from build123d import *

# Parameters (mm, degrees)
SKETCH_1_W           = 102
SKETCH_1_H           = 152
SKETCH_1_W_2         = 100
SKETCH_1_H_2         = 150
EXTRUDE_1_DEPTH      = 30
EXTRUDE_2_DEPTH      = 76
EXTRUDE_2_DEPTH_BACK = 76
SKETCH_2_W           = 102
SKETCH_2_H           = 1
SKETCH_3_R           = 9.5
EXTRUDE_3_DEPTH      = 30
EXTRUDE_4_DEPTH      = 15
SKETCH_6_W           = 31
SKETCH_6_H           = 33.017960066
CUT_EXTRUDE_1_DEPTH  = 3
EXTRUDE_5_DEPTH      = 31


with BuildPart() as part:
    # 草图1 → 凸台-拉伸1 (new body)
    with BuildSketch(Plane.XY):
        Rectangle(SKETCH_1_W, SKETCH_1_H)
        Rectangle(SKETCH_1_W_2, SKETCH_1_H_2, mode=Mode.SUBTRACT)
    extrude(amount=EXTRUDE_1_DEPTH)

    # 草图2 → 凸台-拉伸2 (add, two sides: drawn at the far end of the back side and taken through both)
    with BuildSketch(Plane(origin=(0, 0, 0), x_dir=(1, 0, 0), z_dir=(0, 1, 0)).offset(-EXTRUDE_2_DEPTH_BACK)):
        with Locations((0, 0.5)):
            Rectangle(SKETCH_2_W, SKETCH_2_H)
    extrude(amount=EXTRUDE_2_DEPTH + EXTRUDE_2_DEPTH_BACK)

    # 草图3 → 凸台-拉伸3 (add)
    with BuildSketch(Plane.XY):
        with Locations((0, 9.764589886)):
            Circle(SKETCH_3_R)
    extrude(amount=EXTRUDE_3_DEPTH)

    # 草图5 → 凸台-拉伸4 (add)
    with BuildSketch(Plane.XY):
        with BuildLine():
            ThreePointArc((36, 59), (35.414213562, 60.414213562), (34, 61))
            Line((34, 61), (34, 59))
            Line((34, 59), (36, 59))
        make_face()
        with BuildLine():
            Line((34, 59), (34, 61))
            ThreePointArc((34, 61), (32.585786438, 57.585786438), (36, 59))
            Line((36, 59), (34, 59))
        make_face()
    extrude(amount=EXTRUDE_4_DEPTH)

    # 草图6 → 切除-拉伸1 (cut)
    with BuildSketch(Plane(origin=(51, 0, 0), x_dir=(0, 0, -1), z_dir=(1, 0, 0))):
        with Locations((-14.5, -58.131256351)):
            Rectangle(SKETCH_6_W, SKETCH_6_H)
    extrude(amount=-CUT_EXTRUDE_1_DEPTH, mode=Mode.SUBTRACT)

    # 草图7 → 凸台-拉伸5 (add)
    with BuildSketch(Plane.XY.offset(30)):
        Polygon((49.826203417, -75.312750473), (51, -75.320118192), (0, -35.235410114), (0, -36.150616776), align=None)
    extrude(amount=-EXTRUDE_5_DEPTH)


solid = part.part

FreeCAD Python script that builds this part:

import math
import FreeCAD as App
import Part
import Sketcher

V = App.Vector
Q = App.Units.Quantity


def add_polygon(sketch, points):
    """Adds a closed chain of lines whose ends are joined by coincident constraints."""
    first, n = sketch.GeometryCount, len(points)
    for a, b in zip(points, points[1:] + points[:1]):
        sketch.addGeometry(Part.LineSegment(App.Vector(*a, 0), App.Vector(*b, 0)), False)
    for i in range(n):
        sketch.addConstraint(Sketcher.Constraint("Coincident", first + i, 2, first + (i + 1) % n, 1))

doc = App.newDocument("Part")
body = doc.addObject("PartDesign::Body", "Body")

sketch1 = doc.addObject("Sketcher::SketchObject", "Sketch")
body.addObject(sketch1)
sketch1.AttachmentSupport = (doc.XY_Plane, [""])
sketch1.MapMode = "FlatFace"
add_polygon(sketch1, [(-51, 76), (-51, -76), (51, -76), (51, 76)])
add_polygon(sketch1, [(50, -75), (-50, -75), (-50, 75), (50, 75)])
sketch1.addConstraint([
    Sketcher.Constraint("Vertical", 0),
    Sketcher.Constraint("Horizontal", 1),
    Sketcher.Constraint("Vertical", 2),
    Sketcher.Constraint("Horizontal", 3),
    Sketcher.Constraint("Horizontal", 4),
    Sketcher.Constraint("Vertical", 5),
    Sketcher.Constraint("Horizontal", 6),
    Sketcher.Constraint("Vertical", 7),
    Sketcher.Constraint("Symmetric", 0, 2, 2, 2, -1, 1),
    Sketcher.Constraint("Symmetric", 4, 2, 6, 2, -1, 1),
    Sketcher.Constraint("DistanceX", 1, 1, 1, 2, Q("102 mm")),
    Sketcher.Constraint("DistanceX", 4, 2, 4, 1, Q("100 mm")),
    Sketcher.Constraint("DistanceY", 0, 2, 0, 1, Q("152 mm")),
    Sketcher.Constraint("DistanceY", 5, 1, 5, 2, Q("150 mm")),
])
pad1 = doc.addObject("PartDesign::Pad", "Pad")
body.addObject(pad1)
pad1.Profile = sketch1
pad1.Length = 30

sketch2 = doc.addObject("Sketcher::SketchObject", "Sketch001")
body.addObject(sketch2)
sketch2.AttachmentSupport = (doc.XZ_Plane, [""])
sketch2.MapMode = "FlatFace"
add_polygon(sketch2, [(-51, -1), (-51, 0), (51, 0), (51, -1)])
sketch2.addConstraint([
    Sketcher.Constraint("Vertical", 0),
    Sketcher.Constraint("Horizontal", 1),
    Sketcher.Constraint("Vertical", 2),
    Sketcher.Constraint("Horizontal", 3),
    Sketcher.Constraint("Symmetric", 0, 2, 1, 2, -1, 1),
    Sketcher.Constraint("DistanceX", 1, 1, 1, 2, Q("102 mm")),
    Sketcher.Constraint("DistanceY", 0, 1, 0, 2, Q("1 mm")),
])
pad2 = doc.addObject("PartDesign::Pad", "Pad001")
body.addObject(pad2)
pad2.Profile = sketch2
pad2.Type = "TwoLengths"
pad2.Length = 76
pad2.Length2 = 76
pad2.Reversed = True

sketch3 = doc.addObject("Sketcher::SketchObject", "Sketch002")
body.addObject(sketch3)
sketch3.AttachmentSupport = (doc.XY_Plane, [""])
sketch3.MapMode = "FlatFace"
sketch3.addGeometry(Part.Circle(V(0, 10, 0), V(0, 0, 1), 10), False)
sketch3.addConstraint([
    Sketcher.Constraint("PointOnObject", 0, 3, -2),
    Sketcher.Constraint("Diameter", 0, Q("19 mm")),
    Sketcher.Constraint("DistanceY", -1, 1, 0, 3, Q("9.76459 mm")),
])
pad3 = doc.addObject("PartDesign::Pad", "Pad002")
body.addObject(pad3)
pad3.Profile = sketch3
pad3.Length = 30

sketch4 = doc.addObject("Sketcher::SketchObject", "Sketch003")
body.addObject(sketch4)
sketch4.AttachmentSupport = (doc.XY_Plane, [""])
sketch4.MapMode = "FlatFace"
sketch4.addGeometry([
    Part.ArcOfCircle(Part.Circle(V(34, 59, 0), V(0, 0, 1), 2), math.radians(0), math.radians(90)),
    Part.ArcOfCircle(Part.Circle(V(34, 59, 0), V(0, 0, 1), 2), math.radians(90), math.radians(360)),
], False)
sketch4.addConstraint([
    Sketcher.Constraint("Tangent", 0, 1, 1, 2),
    Sketcher.Constraint("Coincident", 1, 1, 0, 2),
    Sketcher.Constraint("Horizontal", 1, 3, 0, 1),
    Sketcher.Constraint("Vertical", 0, 3, 1, 1),
    Sketcher.Constraint("Radius", 0, Q("2 mm")),
    Sketcher.Constraint("DistanceX", -1, 1, 0, 3, Q("34 mm")),
    Sketcher.Constraint("DistanceY", -1, 1, 0, 3, Q("59 mm")),
])
pad4 = doc.addObject("PartDesign::Pad", "Pad003")
body.addObject(pad4)
pad4.Profile = sketch4
pad4.Length = 15

sketch5 = doc.addObject("Sketcher::SketchObject", "Sketch004")
body.addObject(sketch5)
sketch5.AttachmentSupport = (doc.YZ_Plane, [""])
sketch5.MapMode = "FlatFace"
sketch5.AttachmentOffset = App.Placement(V(0, 0, 51), App.Rotation())
add_polygon(sketch5, [(-42, 30), (-75, 30), (-75, -1), (-42, -1)])
sketch5.addConstraint([
    Sketcher.Constraint("Horizontal", 0),
    Sketcher.Constraint("Vertical", 1),
    Sketcher.Constraint("Horizontal", 2),
    Sketcher.Constraint("Vertical", 3),
    Sketcher.Constraint("DistanceY", 1, 2, 1, 1, Q("31 mm")),
    Sketcher.Constraint("DistanceY", -1, 1, 0, 2, Q("30 mm")),
    Sketcher.Constraint("DistanceX", 0, 2, 0, 1, Q("33.01796 mm")),
    Sketcher.Constraint("DistanceX", 0, 2, -1, 1, Q("74.640236 mm")),
])
pocket1 = doc.addObject("PartDesign::Pocket", "Pocket")
body.addObject(pocket1)
pocket1.Profile = sketch5
pocket1.Length = 3

sketch6 = doc.addObject("Sketcher::SketchObject", "Sketch005")
body.addObject(sketch6)
sketch6.AttachmentSupport = (doc.XY_Plane, [""])
sketch6.MapMode = "FlatFace"
sketch6.AttachmentOffset = App.Placement(V(0, 0, 30), App.Rotation())
add_polygon(sketch6, [(49.8, -75.3), (51, -75.3), (0, -35.2), (0, -36.2)])
sketch6.addConstraint([
    Sketcher.Constraint("Vertical", 2),
    Sketcher.Constraint("PointOnObject", 1, 2, -2),
    Sketcher.Constraint("Parallel", 1, 3),
    Sketcher.Constraint("DistanceX", -1, 1, 0, 2, Q("51 mm")),
    Sketcher.Constraint("DistanceY", 0, 2, 2, 2, Q("39.169501 mm")),
    Sketcher.Constraint("Distance", 0, Q("1.17382 mm")),
    Sketcher.Constraint("Distance", 3, Q("63.374469 mm")),
    Sketcher.Constraint("DistanceY", 0, 2, -1, 1, Q("75.320118 mm")),
])
pad5 = doc.addObject("PartDesign::Pad", "Pad004")
body.addObject(pad5)
pad5.Profile = sketch6
pad5.Length = 31
pad5.Reversed = True

doc.recompute()
